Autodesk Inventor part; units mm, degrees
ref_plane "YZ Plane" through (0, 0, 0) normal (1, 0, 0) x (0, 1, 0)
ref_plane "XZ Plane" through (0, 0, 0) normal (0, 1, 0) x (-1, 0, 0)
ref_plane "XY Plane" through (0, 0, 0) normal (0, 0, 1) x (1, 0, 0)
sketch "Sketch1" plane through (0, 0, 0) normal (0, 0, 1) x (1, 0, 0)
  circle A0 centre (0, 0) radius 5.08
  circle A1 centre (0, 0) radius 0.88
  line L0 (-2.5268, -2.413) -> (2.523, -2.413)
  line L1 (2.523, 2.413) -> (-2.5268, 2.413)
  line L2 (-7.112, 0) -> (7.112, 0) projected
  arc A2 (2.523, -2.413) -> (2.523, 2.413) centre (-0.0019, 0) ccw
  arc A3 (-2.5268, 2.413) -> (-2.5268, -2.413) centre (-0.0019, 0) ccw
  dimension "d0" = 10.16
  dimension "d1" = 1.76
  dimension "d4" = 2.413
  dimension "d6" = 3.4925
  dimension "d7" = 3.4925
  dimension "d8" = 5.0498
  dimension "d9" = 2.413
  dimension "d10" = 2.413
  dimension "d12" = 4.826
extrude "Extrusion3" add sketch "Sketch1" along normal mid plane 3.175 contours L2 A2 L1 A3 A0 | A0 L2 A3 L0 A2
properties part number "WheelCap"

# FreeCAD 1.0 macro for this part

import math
import FreeCAD as App
import Part
import Sketcher
from FreeCAD import Vector
Q = App.Units.Quantity

doc = App.newDocument("Part")
params = doc.addObject("Spreadsheet::Sheet", "Params")
for row, (alias, value) in enumerate([
    ("sketch1_diameter", "0.4 in"),
    ("pad1_length", "0.125 in"),
], start=1):
    params.set(f"A{row}", alias)
    params.set(f"B{row}", "=" + value)
    params.setAlias(f"B{row}", alias)

body = doc.addObject("PartDesign::Body", "Body")

# Sketch on XY plane
sketch1 = body.newObject("Sketcher::SketchObject", "Sketch")
sketch1.AttachmentSupport = (doc.getObject("XY_Plane"), [""])
sketch1.MapMode = "FlatFace"
sketch1.addGeometry([
    Part.Circle(Vector(0, 0, 0), Vector(0, 0, 1), 5.1),  # 0
    Part.ArcOfCircle(Part.Circle(Vector(0, 0, 0), Vector(0, 0, 1), 3.5), math.radians(-44), math.radians(44)),  # 1
    Part.LineSegment(Vector(2.5, -2.4, 0), Vector(-2.5, -2.4, 0)),  # 2
    Part.ArcOfCircle(Part.Circle(Vector(0, 0, 0), Vector(0, 0, 1), 3.5), math.radians(136), math.radians(224)),  # 3
    Part.LineSegment(Vector(-2.5, 2.4, 0), Vector(2.5, 2.4, 0)),  # 4
], False)
sketch1.addConstraint([
    Sketcher.Constraint("Coincident", 1, 1, 2, 1),
    Sketcher.Constraint("Coincident", 2, 2, 3, 2),
    Sketcher.Constraint("Coincident", 3, 1, 4, 1),
    Sketcher.Constraint("Coincident", 4, 2, 1, 2),
    Sketcher.Constraint("Horizontal", 2),
    Sketcher.Constraint("Horizontal", 4),
    Sketcher.Constraint("Coincident", 0, 3, -1, 1),
    Sketcher.Constraint("Coincident", 3, 3, 1, 3),
    Sketcher.Constraint("Equal", 1, 3),
    Sketcher.Constraint("Symmetric", 2, 2, 3, 1, -1),
    Sketcher.Constraint("Diameter", 0, Q("0.4 in")),
    Sketcher.Constraint("Radius", 1, Q("0.1375 in")),
    Sketcher.Constraint("DistanceY", 2, 2, 3, 1, Q("0.19 in")),
    Sketcher.Constraint("DistanceX", 1, 3, -1, 1, 0.002),
])
sketch1.setExpression("Constraints[10]", "Params.sketch1_diameter")
pad1 = body.newObject("PartDesign::Pad", "Pad")
pad1.Profile = sketch1
pad1.setExpression("Length", "Params.pad1_length")
pad1.Midplane = True

doc.recompute()
